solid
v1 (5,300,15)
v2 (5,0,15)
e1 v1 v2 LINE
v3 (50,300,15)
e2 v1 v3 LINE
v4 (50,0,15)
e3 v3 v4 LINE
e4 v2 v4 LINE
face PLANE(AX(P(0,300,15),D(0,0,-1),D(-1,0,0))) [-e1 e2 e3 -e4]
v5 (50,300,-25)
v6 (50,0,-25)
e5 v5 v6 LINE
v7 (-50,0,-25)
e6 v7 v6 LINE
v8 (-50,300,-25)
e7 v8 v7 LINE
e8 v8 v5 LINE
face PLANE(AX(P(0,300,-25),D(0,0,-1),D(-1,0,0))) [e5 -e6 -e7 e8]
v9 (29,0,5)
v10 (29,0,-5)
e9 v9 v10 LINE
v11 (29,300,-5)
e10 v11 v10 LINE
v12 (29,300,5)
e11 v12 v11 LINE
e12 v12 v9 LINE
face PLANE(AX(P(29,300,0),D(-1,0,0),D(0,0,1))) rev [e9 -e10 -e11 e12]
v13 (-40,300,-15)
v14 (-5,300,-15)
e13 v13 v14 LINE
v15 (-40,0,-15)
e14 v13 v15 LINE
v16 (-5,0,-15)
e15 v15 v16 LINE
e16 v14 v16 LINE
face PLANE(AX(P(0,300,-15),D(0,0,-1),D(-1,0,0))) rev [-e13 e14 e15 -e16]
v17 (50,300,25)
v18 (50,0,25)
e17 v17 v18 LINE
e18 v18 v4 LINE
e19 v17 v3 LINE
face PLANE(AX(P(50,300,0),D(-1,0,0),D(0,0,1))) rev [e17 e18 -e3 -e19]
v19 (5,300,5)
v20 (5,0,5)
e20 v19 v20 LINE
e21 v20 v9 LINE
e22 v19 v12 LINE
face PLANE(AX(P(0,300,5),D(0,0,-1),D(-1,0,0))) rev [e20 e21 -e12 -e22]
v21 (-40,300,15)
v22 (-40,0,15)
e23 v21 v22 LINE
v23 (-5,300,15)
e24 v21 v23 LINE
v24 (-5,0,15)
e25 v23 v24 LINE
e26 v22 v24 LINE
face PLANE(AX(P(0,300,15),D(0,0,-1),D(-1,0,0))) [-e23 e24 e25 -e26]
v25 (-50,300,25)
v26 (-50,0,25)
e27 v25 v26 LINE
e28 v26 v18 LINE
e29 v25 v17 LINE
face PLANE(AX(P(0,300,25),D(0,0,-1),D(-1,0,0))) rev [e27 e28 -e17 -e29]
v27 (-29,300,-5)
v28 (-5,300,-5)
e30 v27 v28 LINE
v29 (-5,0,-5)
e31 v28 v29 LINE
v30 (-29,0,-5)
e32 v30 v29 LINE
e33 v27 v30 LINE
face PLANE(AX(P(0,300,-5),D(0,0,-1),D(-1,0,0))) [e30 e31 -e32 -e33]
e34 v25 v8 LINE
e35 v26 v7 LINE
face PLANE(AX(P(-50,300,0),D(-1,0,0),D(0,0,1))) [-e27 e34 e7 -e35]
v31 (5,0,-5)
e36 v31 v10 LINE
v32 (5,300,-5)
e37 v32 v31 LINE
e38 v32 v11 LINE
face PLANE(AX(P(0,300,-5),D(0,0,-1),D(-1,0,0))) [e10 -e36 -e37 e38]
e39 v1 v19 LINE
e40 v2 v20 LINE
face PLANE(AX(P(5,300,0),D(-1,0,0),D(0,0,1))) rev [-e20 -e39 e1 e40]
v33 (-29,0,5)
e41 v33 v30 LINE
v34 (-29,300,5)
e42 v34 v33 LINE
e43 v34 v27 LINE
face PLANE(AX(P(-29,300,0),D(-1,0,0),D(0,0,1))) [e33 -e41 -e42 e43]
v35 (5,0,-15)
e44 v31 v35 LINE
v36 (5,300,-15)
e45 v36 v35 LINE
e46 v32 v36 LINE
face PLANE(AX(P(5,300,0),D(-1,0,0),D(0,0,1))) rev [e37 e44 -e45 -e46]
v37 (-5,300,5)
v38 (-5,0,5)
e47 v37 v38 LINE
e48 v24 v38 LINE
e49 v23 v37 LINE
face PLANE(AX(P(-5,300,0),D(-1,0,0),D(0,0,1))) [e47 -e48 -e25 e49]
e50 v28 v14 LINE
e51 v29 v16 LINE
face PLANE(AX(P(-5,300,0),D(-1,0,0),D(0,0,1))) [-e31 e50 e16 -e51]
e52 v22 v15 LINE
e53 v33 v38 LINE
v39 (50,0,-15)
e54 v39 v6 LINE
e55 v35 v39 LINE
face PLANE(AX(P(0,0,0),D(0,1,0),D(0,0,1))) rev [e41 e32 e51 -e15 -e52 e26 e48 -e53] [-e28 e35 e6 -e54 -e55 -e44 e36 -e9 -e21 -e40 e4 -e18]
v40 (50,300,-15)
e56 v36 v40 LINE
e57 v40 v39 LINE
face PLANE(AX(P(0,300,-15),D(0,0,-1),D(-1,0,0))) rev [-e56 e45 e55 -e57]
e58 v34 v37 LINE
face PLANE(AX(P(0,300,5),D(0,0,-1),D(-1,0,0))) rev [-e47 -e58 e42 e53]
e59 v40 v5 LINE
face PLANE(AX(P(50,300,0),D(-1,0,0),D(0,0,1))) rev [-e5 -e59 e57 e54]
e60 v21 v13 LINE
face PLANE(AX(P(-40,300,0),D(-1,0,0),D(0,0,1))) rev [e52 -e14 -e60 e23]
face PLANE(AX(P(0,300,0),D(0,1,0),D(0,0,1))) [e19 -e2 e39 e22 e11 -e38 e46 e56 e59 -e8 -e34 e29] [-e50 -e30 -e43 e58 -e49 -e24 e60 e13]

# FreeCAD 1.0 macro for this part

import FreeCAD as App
import Part
import Sketcher


def add_polygon(sketch, points):
    """Adds a closed chain of lines whose ends are joined by coincident constraints."""
    first, n = sketch.GeometryCount, len(points)
    for a, b in zip(points, points[1:] + points[:1]):
        sketch.addGeometry(Part.LineSegment(App.Vector(*a, 0), App.Vector(*b, 0)), False)
    for i in range(n):
        sketch.addConstraint(Sketcher.Constraint("Coincident", first + i, 2, first + (i + 1) % n, 1))

doc = App.newDocument("Part")
body = doc.addObject("PartDesign::Body", "Body")

# Sketch on XZ plane
sketch1 = doc.addObject("Sketcher::SketchObject", "Sketch")
body.addObject(sketch1)
sketch1.AttachmentSupport = (doc.XZ_Plane, [""])
sketch1.MapMode = "FlatFace"
add_polygon(sketch1, [(5, 15), (5, 5), (29, 5), (29, -5), (5, -5), (5, -15), (50, -15), (50, -25), (-50, -25), (-50, 25), (50, 25), (50, 15)])  # lines 0-11
add_polygon(sketch1, [(-5, -15), (-5, -5), (-29, -5), (-29, 5), (-5, 5), (-5, 15), (-40, 15), (-40, -15)])  # lines 12-19
sketch1.addConstraint([
    Sketcher.Constraint("Vertical", 0),
    Sketcher.Constraint("Horizontal", 1),
    Sketcher.Constraint("Vertical", 2),
    Sketcher.Constraint("Horizontal", 3),
    Sketcher.Constraint("Vertical", 4),
    Sketcher.Constraint("Horizontal", 5),
    Sketcher.Constraint("Vertical", 6),
    Sketcher.Constraint("Horizontal", 7),
    Sketcher.Constraint("Vertical", 8),
    Sketcher.Constraint("Horizontal", 9),
    Sketcher.Constraint("Vertical", 10),
    Sketcher.Constraint("Horizontal", 11),
    Sketcher.Constraint("Vertical", 12),
    Sketcher.Constraint("Horizontal", 13),
    Sketcher.Constraint("Vertical", 14),
    Sketcher.Constraint("Horizontal", 15),
    Sketcher.Constraint("Vertical", 16),
    Sketcher.Constraint("Horizontal", 17),
    Sketcher.Constraint("Vertical", 18),
    Sketcher.Constraint("Horizontal", 19),
    Sketcher.Constraint("Symmetric", 6, 2, 8, 2, -1, 1),
    Sketcher.Constraint("Symmetric", 0, 2, 12, 2, -1, 1),
    Sketcher.Constraint("Symmetric", 2, 2, 14, 2, -1, 1),
    Sketcher.Constraint("Symmetric", 4, 2, 16, 2, -1, 1),
    Sketcher.Constraint("Symmetric", 3, 2, 12, 2, -2),
    Sketcher.Constraint("Symmetric", 5, 2, 10, 2, -1),
    Sketcher.Constraint("Horizontal", 5, 2, 18, 2),
    Sketcher.Constraint("Equal", 0, 2),
    Sketcher.Constraint("Equal", 4, 6),
    Sketcher.Constraint("DistanceX", 1, 1, 1, 2, 24.0),
    Sketcher.Constraint("DistanceX", 5, 1, 5, 2, 45.0),
    Sketcher.Constraint("DistanceX", 7, 2, 7, 1, 100.0),
    Sketcher.Constraint("DistanceX", 17, 2, 17, 1, 35.0),
    Sketcher.Constraint("DistanceY", 0, 2, 0, 1, 10.0),
])
pad1 = doc.addObject("PartDesign::Pad", "Pad")
body.addObject(pad1)
pad1.Profile = sketch1
pad1.Length = 300
pad1.Reversed = True

doc.recompute()
